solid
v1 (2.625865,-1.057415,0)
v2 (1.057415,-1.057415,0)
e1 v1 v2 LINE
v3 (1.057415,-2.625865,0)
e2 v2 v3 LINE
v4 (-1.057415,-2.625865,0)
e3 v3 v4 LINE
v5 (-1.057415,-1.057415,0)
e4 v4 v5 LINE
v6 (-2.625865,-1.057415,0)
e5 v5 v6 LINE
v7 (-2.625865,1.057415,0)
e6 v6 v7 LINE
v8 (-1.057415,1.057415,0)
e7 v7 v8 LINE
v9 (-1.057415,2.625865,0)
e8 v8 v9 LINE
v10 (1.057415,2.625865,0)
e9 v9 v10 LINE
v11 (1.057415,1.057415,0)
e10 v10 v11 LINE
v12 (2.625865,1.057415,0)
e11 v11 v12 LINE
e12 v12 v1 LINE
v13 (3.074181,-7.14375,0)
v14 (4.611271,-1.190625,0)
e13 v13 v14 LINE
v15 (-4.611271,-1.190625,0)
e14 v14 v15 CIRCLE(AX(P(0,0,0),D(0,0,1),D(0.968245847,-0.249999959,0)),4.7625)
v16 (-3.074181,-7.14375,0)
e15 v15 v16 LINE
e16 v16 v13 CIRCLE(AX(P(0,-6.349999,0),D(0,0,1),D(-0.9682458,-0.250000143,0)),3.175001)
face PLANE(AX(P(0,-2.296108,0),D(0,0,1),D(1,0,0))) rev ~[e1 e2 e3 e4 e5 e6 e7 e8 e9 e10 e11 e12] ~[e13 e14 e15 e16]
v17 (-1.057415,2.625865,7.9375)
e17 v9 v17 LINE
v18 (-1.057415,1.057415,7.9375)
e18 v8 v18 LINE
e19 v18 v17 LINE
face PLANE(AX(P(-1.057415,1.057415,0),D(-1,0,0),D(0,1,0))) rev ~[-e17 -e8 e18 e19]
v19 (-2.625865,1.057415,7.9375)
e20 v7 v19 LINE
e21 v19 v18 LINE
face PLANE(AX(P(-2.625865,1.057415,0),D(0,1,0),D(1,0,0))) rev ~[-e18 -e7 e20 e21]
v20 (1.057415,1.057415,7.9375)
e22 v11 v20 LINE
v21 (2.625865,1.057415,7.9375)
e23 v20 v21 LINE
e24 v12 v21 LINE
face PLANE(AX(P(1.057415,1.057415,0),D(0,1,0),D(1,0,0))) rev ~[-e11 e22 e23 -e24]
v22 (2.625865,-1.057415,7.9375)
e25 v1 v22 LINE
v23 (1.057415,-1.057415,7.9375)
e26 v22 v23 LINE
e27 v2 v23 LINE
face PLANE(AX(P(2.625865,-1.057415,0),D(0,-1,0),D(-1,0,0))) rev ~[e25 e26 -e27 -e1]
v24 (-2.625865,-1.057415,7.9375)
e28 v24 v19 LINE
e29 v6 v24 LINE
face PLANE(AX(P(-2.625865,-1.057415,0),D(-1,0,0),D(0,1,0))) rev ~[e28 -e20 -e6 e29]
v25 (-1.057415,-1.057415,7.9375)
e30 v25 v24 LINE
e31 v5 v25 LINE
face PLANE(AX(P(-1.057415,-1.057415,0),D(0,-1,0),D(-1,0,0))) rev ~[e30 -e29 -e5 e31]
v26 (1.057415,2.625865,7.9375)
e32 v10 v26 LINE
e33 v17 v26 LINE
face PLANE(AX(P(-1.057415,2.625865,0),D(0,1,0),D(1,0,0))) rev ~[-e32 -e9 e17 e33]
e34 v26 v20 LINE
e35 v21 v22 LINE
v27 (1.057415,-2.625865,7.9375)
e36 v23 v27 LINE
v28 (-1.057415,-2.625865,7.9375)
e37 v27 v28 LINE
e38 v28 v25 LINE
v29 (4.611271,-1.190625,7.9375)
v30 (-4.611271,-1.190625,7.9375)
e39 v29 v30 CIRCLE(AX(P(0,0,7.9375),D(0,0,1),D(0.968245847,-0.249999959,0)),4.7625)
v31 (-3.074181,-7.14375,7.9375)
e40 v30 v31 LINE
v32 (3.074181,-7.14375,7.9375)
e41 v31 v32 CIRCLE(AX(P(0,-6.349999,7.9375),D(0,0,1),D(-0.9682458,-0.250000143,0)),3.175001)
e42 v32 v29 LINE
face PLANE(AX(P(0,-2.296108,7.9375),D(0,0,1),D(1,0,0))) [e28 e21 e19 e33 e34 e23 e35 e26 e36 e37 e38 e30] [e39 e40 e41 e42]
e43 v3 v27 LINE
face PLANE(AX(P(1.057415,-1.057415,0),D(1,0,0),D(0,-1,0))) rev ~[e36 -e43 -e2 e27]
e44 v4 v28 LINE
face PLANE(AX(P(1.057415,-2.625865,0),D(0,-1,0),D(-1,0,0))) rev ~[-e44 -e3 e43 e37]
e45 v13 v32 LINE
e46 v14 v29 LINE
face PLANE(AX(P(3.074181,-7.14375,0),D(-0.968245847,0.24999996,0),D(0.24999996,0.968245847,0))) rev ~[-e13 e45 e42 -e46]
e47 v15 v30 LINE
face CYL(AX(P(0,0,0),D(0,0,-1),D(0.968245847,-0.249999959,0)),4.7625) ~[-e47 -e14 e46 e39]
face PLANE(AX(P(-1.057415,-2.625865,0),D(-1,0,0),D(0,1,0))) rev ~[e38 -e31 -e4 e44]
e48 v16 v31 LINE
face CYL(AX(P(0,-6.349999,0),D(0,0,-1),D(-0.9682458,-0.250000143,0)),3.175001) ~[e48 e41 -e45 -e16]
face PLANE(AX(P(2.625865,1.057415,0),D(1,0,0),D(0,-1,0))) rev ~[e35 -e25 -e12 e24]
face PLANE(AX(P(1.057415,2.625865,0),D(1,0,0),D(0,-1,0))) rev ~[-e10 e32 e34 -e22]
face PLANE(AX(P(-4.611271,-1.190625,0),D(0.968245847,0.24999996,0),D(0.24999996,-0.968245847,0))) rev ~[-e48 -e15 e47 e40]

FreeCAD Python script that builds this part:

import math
import FreeCAD as App
import Part
import Sketcher
Q = App.Units.Quantity


def add_polygon(sketch, points):
    """Adds a closed chain of lines whose ends are joined by coincident constraints."""
    first, n = sketch.GeometryCount, len(points)
    for a, b in zip(points, points[1:] + points[:1]):
        sketch.addGeometry(Part.LineSegment(App.Vector(*a, 0), App.Vector(*b, 0)), False)
    for i in range(n):
        sketch.addConstraint(Sketcher.Constraint("Coincident", first + i, 2, first + (i + 1) % n, 1))

doc = App.newDocument("Part")
params = doc.addObject("Spreadsheet::Sheet", "Params")
for row, (alias, value) in enumerate([
    ("sketch1_radius", "0.1875 in"),
    ("sketch1_radius2", "0.125 in"),
    ("pad1_length", "0.3125 in"),
], start=1):
    params.set(f"A{row}", alias)
    params.set(f"B{row}", "=" + value)
    params.setAlias(f"B{row}", alias)

body = doc.addObject("PartDesign::Body", "Body")

sketch1 = body.newObject("Sketcher::SketchObject", "Sketch")
sketch1.AttachmentSupport = (doc.getObject("XY_Plane"), [""])
sketch1.MapMode = "FlatFace"
sketch1.addGeometry(Part.LineSegment(App.Vector(3.1, -7.1, 0), App.Vector(4.6, -1.2, 0)), False)
sketch1.addGeometry(Part.ArcOfCircle(Part.Circle(App.Vector(0, 0, 0), App.Vector(0, 0, 1), 4.8), math.radians(-14), math.radians(194)), False)
sketch1.addGeometry(Part.LineSegment(App.Vector(-4.6, -1.2, 0), App.Vector(-3.1, -7.1, 0)), False)
sketch1.addGeometry(Part.ArcOfCircle(Part.Circle(App.Vector(0, -6.3, 0), App.Vector(0, 0, 1), 3.2), math.radians(-166), math.radians(-14)), False)
add_polygon(sketch1, [(-1.1, 1.1), (-1.1, 2.6), (1.1, 2.6), (1.1, 1.1), (2.6, 1.1), (2.6, -1.1), (1.1, -1.1), (1.1, -2.6), (-1.1, -2.6), (-1.1, -1.1), (-2.6, -1.1), (-2.6, 1.1)])
sketch1.addConstraint([
    Sketcher.Constraint("Tangent", 0, 2, 1, 1),
    Sketcher.Constraint("Tangent", 1, 2, 2, 1),
    Sketcher.Constraint("Tangent", 2, 2, 3, 1),
    Sketcher.Constraint("Tangent", 3, 2, 0, 1),
    Sketcher.Constraint("Vertical", 4),
    Sketcher.Constraint("Horizontal", 5),
    Sketcher.Constraint("Vertical", 6),
    Sketcher.Constraint("Horizontal", 7),
    Sketcher.Constraint("Vertical", 8),
    Sketcher.Constraint("Horizontal", 9),
    Sketcher.Constraint("Vertical", 10),
    Sketcher.Constraint("Horizontal", 11),
    Sketcher.Constraint("Vertical", 12),
    Sketcher.Constraint("Horizontal", 13),
    Sketcher.Constraint("Vertical", 14),
    Sketcher.Constraint("Horizontal", 15),
    Sketcher.Constraint("Coincident", 1, 3, -1, 1),
    Sketcher.Constraint("Symmetric", 4, 2, 10, 2, -1, 1),
    Sketcher.Constraint("Symmetric", 6, 2, 12, 2, -1, 1),
    Sketcher.Constraint("Symmetric", 8, 2, 14, 2, -1, 1),
    Sketcher.Constraint("Symmetric", 9, 2, 12, 2, -2),
    Sketcher.Constraint("PointOnObject", 3, 3, -2),
    Sketcher.Constraint("Equal", 15, 4),
    Sketcher.Constraint("Equal", 11, 8),
    Sketcher.Constraint("Radius", 1, Q("0.1875 in")),
    Sketcher.Constraint("Radius", 3, Q("0.125 in")),
    Sketcher.Constraint("DistanceY", 3, 3, -1, 1, Q("0.25 in")),
    Sketcher.Constraint("DistanceX", 5, 1, 5, 2, 2.11483),
    Sketcher.Constraint("DistanceX", 7, 1, 7, 2, 1.56845),
])
sketch1.setExpression("Constraints[36]", "Params.sketch1_radius")
sketch1.setExpression("Constraints[37]", "Params.sketch1_radius2")
pad1 = body.newObject("PartDesign::Pad", "Pad")
pad1.Profile = sketch1
pad1.setExpression("Length", "Params.pad1_length")

doc.recompute()
